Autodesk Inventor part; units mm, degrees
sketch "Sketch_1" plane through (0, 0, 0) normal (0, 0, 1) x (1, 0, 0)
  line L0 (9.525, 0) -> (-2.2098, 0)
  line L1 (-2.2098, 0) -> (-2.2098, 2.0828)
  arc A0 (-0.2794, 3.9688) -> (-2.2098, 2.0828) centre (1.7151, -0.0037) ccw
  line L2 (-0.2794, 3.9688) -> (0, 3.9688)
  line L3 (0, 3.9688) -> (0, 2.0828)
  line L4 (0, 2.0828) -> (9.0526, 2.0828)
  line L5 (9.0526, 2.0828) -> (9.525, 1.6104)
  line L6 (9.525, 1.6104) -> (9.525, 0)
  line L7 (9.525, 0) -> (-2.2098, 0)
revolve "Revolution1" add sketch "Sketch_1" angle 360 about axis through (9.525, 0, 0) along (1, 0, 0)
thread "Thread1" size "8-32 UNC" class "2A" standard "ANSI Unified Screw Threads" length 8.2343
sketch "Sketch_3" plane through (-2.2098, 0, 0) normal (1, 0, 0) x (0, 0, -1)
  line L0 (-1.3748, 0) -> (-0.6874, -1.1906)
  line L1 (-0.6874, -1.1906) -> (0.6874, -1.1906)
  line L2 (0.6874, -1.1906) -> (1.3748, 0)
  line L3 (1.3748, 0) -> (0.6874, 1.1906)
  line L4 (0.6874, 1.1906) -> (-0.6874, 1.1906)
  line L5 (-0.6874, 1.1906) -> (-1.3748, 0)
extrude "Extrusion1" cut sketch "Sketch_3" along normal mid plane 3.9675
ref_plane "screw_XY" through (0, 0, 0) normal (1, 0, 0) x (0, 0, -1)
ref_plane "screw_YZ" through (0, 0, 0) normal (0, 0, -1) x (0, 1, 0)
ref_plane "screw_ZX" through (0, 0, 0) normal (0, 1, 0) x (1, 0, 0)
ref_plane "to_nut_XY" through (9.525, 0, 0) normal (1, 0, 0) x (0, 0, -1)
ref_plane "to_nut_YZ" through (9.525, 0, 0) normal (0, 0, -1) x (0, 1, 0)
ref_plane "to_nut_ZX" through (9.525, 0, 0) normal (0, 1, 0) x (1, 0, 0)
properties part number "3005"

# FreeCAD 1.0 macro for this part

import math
import FreeCAD as App
import Part
import Sketcher

V = App.Vector
Q = App.Units.Quantity


def add_polygon(sketch, points):
    """Adds a closed chain of lines whose ends are joined by coincident constraints."""
    first, n = sketch.GeometryCount, len(points)
    for a, b in zip(points, points[1:] + points[:1]):
        sketch.addGeometry(Part.LineSegment(App.Vector(*a, 0), App.Vector(*b, 0)), False)
    for i in range(n):
        sketch.addConstraint(Sketcher.Constraint("Coincident", first + i, 2, first + (i + 1) % n, 1))

doc = App.newDocument("Part")
body = doc.addObject("PartDesign::Body", "Body")

sketch1 = doc.addObject("Sketcher::SketchObject", "Sketch")
body.addObject(sketch1)
sketch1.AttachmentSupport = (doc.XY_Plane, [""])
sketch1.MapMode = "FlatFace"
sketch1.addGeometry(Part.LineSegment(V(-2.21, 0, 0), V(9.53, 0, 0)), False)
sketch1.addGeometry(Part.LineSegment(V(9.53, 0, 0), V(9.53, 1.61, 0)), False)
sketch1.addGeometry(Part.LineSegment(V(9.53, 1.61, 0), V(9.05, 2.08, 0)), False)
sketch1.addGeometry(Part.LineSegment(V(9.05, 2.08, 0), V(0, 2.08, 0)), False)
sketch1.addGeometry(Part.LineSegment(V(0, 2.08, 0), V(0, 3.97, 0)), False)
sketch1.addGeometry(Part.LineSegment(V(0, 3.97, 0), V(-0.28, 3.97, 0)), False)
sketch1.addGeometry(Part.ArcOfCircle(Part.Circle(V(1.72, 0, 0), V(0, 0, 1), 4.45), math.radians(117), math.radians(152)), False)
sketch1.addGeometry(Part.LineSegment(V(-2.21, 2.08, 0), V(-2.21, 0, 0)), False)
sketch1.addConstraint(Sketcher.Constraint("Coincident", 0, 2, 1, 1))
sketch1.addConstraint(Sketcher.Constraint("Coincident", 1, 2, 2, 1))
sketch1.addConstraint(Sketcher.Constraint("Coincident", 2, 2, 3, 1))
sketch1.addConstraint(Sketcher.Constraint("Coincident", 3, 2, 4, 1))
sketch1.addConstraint(Sketcher.Constraint("Coincident", 4, 2, 5, 1))
sketch1.addConstraint(Sketcher.Constraint("Coincident", 5, 2, 6, 1))
sketch1.addConstraint(Sketcher.Constraint("Coincident", 6, 2, 7, 1))
sketch1.addConstraint(Sketcher.Constraint("Coincident", 7, 2, 0, 1))
sketch1.addConstraint(Sketcher.Constraint("Horizontal", 0))
sketch1.addConstraint(Sketcher.Constraint("Vertical", 1))
sketch1.addConstraint(Sketcher.Constraint("Horizontal", 3))
sketch1.addConstraint(Sketcher.Constraint("Vertical", 4))
sketch1.addConstraint(Sketcher.Constraint("Horizontal", 5))
sketch1.addConstraint(Sketcher.Constraint("Vertical", 7))
sketch1.addConstraint(Sketcher.Constraint("PointOnObject", 0, 2, -1))
sketch1.addConstraint(Sketcher.Constraint("PointOnObject", 3, 2, -2))
sketch1.addConstraint(Sketcher.Constraint("Horizontal", 3, 2, 6, 2))
sketch1.addConstraint(Sketcher.Constraint("Angle", 2, Q("135 deg")))
sketch1.addConstraint(Sketcher.Constraint("Radius", 6, Q("0.175 in")))
sketch1.addConstraint(Sketcher.Constraint("DistanceX", 0, 1, 0, 2, Q("0.462 in")))
sketch1.addConstraint(Sketcher.Constraint("DistanceX", 5, 2, 5, 1, Q("0.011 in")))
sketch1.addConstraint(Sketcher.Constraint("DistanceY", 7, 2, 7, 1, Q("0.082 in")))
sketch1.addConstraint(Sketcher.Constraint("DistanceX", 3, 2, 3, 1, Q("0.3564 in")))
sketch1.addConstraint(Sketcher.Constraint("DistanceY", 1, 1, 1, 2, Q("0.0634 in")))
sketch1.addConstraint(Sketcher.Constraint("DistanceY", -1, 1, 4, 2, Q("0.156252 in")))
revolution = doc.addObject("PartDesign::Revolution", "Revolution")
body.addObject(revolution)
revolution.Profile = sketch1
revolution.ReferenceAxis = (sketch1, ["H_Axis"])
revolution.Angle = 360

sketch2 = doc.addObject("Sketcher::SketchObject", "Sketch001")
body.addObject(sketch2)
sketch2.AttachmentSupport = (doc.YZ_Plane, [""])
sketch2.MapMode = "FlatFace"
sketch2.AttachmentOffset = App.Placement(V(0, 0, -0.087 * 25.4), App.Rotation())
add_polygon(sketch2, [(1.2, 0.7), (0, 1.4), (-1.2, 0.7), (-1.2, -0.7), (0, -1.4), (1.2, -0.7)])
sketch2.addConstraint(Sketcher.Constraint("Vertical", 2))
sketch2.addConstraint(Sketcher.Constraint("Vertical", 5))
sketch2.addConstraint(Sketcher.Constraint("Symmetric", 0, 2, 3, 2, -1, 1))
sketch2.addConstraint(Sketcher.Constraint("Symmetric", 1, 2, 4, 2, -1, 1))
sketch2.addConstraint(Sketcher.Constraint("PointOnObject", 0, 2, -2))
sketch2.addConstraint(Sketcher.Constraint("Parallel", 0, 3))
sketch2.addConstraint(Sketcher.Constraint("Horizontal", 2, 2, 4, 2))
sketch2.addConstraint(Sketcher.Constraint("Angle", 0, Q("149.9998 deg")))
sketch2.addConstraint(Sketcher.Constraint("DistanceX", 1, 2, -1, 1, Q("0.046874 in")))
sketch2.addConstraint(Sketcher.Constraint("DistanceY", 2, 2, 2, 1, Q("1.3748 mm")))
pocket1 = doc.addObject("PartDesign::Pocket", "Pocket")
body.addObject(pocket1)
pocket1.Profile = sketch2
pocket1.Length = Q("0.1562008 in")
pocket1.Midplane = True

doc.recompute()
